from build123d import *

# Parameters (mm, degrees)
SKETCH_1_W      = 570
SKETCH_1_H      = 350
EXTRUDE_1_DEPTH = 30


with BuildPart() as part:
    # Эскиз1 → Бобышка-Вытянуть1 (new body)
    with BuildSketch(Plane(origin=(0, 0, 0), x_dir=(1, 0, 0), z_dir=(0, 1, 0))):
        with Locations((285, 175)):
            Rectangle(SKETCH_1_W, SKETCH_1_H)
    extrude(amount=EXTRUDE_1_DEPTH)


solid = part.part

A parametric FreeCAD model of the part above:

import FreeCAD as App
import Part
import Sketcher

V = App.Vector


def add_polygon(sketch, points):
    """Adds a closed chain of lines whose ends are joined by coincident constraints."""
    first, n = sketch.GeometryCount, len(points)
    for a, b in zip(points, points[1:] + points[:1]):
        sketch.addGeometry(Part.LineSegment(App.Vector(*a, 0), App.Vector(*b, 0)), False)
    for i in range(n):
        sketch.addConstraint(Sketcher.Constraint("Coincident", first + i, 2, first + (i + 1) % n, 1))

doc = App.newDocument("Part")
body = doc.addObject("PartDesign::Body", "Body")

# Sketch on XZ plane
sketch1 = body.newObject("Sketcher::SketchObject", "Sketch")
sketch1.AttachmentSupport = (doc.getObject("XZ_Plane"), [""])
sketch1.MapMode = "FlatFace"
add_polygon(sketch1, [(0, -350), (0, 0), (570, 0), (570, -350)])  # lines 0-3
sketch1.addConstraint(Sketcher.Constraint("Vertical", 0))
sketch1.addConstraint(Sketcher.Constraint("Horizontal", 1))
sketch1.addConstraint(Sketcher.Constraint("Vertical", 2))
sketch1.addConstraint(Sketcher.Constraint("Horizontal", 3))
sketch1.addConstraint(Sketcher.Constraint("Coincident", 0, 2, -1, 1))
sketch1.addConstraint(Sketcher.Constraint("DistanceX", 1, 1, 1, 2, 570.0))
sketch1.addConstraint(Sketcher.Constraint("DistanceY", 0, 1, 0, 2, 350.0))
pad1 = body.newObject("PartDesign::Pad", "Pad")
pad1.Profile = sketch1
pad1.Length = 30
pad1.Reversed = True

doc.recompute()
